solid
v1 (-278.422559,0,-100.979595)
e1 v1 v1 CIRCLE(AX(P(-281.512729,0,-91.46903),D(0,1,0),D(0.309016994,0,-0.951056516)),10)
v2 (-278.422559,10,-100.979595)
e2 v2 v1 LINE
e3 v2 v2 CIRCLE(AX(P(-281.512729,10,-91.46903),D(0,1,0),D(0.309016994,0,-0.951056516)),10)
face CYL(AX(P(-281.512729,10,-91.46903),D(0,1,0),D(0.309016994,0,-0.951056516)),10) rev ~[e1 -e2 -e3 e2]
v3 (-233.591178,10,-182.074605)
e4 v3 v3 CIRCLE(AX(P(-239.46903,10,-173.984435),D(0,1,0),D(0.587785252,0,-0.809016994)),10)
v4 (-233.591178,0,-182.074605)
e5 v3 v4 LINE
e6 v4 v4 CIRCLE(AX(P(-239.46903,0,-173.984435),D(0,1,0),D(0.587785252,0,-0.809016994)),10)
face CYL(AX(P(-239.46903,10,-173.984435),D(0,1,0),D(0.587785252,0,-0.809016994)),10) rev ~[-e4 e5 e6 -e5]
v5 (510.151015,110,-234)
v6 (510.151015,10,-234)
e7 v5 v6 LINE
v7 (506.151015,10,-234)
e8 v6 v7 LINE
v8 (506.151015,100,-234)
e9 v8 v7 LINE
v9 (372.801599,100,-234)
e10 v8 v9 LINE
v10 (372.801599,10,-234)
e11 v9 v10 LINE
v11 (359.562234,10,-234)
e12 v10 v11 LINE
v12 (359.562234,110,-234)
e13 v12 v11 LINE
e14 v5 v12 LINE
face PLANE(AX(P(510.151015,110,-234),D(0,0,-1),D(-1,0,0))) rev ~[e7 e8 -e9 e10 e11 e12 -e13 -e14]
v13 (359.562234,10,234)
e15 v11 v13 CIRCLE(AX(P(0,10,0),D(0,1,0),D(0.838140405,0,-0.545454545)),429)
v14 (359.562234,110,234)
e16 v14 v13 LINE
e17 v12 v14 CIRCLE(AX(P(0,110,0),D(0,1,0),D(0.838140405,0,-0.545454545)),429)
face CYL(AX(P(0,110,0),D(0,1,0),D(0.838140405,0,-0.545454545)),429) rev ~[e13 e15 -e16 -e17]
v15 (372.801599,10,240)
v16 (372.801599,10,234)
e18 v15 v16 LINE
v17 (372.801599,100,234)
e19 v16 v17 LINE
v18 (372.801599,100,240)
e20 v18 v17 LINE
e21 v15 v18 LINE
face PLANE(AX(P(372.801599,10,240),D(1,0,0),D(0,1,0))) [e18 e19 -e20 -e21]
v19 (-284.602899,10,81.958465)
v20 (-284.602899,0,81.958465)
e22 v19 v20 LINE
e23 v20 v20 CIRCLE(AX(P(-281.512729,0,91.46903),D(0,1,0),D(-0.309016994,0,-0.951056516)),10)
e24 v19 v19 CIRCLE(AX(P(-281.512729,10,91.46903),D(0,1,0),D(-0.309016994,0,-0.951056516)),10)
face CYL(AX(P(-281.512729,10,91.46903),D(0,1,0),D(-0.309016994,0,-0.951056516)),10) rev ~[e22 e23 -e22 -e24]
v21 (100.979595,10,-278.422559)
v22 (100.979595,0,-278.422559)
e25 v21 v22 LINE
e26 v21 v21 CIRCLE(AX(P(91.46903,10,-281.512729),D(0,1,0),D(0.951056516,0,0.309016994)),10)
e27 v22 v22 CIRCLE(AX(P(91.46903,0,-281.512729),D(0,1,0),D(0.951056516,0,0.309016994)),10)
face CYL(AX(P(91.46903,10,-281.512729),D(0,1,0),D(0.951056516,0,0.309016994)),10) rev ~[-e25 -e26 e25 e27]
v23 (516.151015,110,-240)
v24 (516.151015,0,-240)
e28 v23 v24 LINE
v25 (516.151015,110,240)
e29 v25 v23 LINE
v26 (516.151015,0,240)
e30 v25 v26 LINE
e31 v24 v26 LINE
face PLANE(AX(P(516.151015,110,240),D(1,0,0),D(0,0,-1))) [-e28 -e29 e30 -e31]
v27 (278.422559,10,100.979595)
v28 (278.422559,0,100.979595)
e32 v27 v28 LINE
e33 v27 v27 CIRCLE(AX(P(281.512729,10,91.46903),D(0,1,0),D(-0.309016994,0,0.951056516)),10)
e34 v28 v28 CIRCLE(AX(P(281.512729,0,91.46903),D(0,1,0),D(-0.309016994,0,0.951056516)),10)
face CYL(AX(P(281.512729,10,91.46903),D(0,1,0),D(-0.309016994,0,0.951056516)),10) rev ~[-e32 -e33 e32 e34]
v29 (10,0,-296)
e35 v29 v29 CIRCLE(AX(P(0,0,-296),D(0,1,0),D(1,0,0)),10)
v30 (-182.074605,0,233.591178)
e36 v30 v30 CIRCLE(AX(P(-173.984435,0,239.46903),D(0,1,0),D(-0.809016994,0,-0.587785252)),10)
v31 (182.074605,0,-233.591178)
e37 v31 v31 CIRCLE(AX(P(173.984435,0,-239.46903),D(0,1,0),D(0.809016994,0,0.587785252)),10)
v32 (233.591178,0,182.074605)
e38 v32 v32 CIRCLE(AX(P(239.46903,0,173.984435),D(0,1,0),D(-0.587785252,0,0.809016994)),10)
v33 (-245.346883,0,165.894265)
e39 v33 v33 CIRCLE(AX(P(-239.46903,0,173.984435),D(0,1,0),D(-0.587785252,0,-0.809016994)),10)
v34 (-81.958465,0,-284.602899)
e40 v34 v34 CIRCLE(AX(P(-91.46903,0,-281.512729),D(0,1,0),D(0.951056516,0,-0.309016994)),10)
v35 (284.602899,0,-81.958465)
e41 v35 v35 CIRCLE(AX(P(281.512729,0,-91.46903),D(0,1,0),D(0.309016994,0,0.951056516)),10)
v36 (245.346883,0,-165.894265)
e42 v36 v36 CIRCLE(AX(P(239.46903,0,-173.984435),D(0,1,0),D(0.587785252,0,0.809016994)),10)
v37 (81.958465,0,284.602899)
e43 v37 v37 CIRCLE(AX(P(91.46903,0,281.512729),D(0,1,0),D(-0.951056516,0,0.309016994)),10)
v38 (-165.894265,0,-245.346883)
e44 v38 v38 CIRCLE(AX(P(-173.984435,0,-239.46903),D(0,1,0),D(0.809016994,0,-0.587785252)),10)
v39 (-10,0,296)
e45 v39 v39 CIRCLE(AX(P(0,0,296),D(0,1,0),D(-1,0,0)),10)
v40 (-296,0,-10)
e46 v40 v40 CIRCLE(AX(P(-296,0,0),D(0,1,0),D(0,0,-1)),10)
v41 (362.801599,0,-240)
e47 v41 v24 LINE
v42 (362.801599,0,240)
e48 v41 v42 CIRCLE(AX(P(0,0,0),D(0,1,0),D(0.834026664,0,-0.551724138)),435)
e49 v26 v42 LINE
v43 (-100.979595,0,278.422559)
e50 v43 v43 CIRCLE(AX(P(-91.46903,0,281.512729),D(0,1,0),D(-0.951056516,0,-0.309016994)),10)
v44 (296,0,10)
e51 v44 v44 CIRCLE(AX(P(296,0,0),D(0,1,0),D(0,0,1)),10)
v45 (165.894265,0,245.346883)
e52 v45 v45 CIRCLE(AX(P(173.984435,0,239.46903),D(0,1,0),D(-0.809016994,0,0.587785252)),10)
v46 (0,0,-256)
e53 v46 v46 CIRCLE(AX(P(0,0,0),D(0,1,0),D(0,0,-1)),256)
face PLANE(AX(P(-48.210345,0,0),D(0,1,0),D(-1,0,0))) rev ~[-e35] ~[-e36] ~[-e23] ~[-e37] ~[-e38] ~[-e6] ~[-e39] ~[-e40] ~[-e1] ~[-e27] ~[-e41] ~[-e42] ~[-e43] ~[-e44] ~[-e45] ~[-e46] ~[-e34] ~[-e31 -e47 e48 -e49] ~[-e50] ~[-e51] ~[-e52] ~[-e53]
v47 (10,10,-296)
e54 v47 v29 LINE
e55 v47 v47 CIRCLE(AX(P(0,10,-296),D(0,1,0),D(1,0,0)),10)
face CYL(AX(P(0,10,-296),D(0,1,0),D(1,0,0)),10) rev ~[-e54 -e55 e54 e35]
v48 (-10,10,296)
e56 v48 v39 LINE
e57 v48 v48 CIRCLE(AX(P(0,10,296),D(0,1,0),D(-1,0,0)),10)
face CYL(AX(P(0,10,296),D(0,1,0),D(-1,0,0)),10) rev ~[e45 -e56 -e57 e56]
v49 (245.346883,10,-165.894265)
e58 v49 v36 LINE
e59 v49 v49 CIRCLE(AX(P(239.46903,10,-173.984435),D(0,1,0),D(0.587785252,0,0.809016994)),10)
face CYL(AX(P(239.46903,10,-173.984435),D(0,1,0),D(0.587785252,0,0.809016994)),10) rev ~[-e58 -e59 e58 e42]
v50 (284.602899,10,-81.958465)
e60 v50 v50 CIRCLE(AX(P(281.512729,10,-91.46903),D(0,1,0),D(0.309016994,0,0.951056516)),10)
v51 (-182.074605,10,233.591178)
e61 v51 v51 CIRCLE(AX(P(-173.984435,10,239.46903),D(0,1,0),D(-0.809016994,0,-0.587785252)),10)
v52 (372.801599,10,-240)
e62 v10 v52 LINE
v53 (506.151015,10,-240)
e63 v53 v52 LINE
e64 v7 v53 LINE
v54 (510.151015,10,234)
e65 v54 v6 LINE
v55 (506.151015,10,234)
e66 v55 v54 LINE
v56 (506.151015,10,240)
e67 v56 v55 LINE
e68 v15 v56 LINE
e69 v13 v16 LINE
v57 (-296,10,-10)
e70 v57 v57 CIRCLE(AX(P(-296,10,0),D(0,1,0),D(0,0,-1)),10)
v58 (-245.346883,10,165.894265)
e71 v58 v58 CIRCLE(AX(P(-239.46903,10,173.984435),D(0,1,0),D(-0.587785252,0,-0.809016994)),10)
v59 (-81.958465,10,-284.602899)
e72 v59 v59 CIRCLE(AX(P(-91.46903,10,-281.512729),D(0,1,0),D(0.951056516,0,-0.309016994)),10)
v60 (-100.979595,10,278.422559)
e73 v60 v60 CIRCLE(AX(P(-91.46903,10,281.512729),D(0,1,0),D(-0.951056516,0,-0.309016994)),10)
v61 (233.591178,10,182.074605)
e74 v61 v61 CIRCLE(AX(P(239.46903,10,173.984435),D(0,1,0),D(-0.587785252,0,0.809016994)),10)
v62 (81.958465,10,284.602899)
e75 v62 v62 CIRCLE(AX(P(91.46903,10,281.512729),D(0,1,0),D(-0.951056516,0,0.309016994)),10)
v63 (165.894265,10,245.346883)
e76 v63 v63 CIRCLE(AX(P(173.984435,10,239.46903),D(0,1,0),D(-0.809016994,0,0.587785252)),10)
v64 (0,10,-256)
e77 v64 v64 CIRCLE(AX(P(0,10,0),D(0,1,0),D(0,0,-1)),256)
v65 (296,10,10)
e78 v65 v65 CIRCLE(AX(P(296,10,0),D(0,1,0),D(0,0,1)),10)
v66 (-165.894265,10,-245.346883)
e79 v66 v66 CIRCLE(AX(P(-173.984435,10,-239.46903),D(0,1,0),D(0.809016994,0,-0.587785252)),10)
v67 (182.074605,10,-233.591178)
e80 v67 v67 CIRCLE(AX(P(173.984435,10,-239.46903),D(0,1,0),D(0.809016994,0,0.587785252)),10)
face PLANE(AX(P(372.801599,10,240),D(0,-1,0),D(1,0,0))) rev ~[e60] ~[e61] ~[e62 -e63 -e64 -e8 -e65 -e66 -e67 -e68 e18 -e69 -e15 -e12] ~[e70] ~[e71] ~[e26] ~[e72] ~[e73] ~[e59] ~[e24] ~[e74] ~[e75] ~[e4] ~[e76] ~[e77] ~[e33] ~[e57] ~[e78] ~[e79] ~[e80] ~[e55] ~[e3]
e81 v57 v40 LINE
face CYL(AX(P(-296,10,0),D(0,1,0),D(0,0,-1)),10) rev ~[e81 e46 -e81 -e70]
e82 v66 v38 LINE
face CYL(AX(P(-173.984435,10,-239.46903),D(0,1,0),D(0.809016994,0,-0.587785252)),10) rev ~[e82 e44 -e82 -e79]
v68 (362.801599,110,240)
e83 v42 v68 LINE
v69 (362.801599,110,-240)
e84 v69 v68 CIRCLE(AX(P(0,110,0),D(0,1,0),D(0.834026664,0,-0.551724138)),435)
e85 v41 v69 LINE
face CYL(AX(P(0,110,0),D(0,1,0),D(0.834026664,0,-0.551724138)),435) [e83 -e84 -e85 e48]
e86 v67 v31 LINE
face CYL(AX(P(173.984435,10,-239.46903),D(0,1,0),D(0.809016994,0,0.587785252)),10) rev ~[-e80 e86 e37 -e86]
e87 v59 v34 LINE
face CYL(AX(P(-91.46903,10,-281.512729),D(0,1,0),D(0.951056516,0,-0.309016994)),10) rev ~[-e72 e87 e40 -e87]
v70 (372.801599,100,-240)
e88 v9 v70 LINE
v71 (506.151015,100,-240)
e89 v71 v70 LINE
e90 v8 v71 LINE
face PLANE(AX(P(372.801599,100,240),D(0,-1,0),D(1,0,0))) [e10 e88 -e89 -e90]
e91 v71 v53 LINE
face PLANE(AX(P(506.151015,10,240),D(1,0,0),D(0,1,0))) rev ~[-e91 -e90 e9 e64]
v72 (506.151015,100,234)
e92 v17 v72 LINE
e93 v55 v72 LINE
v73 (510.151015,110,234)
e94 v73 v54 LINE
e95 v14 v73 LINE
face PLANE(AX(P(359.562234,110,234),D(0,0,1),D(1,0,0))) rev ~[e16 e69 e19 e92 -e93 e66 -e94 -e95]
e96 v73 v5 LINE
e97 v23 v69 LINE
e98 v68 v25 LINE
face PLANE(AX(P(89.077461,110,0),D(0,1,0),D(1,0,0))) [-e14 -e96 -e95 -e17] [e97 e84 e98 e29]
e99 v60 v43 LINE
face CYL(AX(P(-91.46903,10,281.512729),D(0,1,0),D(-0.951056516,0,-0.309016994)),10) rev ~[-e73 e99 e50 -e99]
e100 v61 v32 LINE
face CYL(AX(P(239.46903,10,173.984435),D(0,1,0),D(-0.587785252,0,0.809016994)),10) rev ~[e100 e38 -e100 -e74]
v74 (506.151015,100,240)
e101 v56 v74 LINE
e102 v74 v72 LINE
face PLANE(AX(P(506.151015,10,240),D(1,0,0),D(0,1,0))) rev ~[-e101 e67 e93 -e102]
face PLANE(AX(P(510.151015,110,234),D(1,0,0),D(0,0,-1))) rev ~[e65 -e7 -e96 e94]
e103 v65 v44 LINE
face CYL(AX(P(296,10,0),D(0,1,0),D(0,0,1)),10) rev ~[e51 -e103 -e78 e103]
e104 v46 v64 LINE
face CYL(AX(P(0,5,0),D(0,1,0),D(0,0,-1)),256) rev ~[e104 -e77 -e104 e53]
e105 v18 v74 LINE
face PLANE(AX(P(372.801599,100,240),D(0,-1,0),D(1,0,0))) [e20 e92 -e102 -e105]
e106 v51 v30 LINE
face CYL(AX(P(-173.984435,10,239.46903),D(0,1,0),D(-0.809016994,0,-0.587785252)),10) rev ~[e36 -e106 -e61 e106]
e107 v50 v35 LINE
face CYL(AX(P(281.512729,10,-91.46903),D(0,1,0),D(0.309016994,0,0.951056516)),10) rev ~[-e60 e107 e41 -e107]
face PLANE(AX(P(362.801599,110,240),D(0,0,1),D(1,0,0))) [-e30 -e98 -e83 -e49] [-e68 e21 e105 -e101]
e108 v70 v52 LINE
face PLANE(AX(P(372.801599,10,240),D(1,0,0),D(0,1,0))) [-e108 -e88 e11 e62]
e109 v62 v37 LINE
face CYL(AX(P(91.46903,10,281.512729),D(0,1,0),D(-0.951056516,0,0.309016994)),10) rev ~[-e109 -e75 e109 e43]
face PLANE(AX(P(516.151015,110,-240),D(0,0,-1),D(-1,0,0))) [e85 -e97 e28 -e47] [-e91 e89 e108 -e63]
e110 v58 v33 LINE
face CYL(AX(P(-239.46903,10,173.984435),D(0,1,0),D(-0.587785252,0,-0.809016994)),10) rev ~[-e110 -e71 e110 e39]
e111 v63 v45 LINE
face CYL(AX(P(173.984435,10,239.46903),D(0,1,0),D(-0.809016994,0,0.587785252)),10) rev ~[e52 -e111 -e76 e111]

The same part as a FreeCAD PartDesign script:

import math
import FreeCAD as App
import Part
import Sketcher
Q = App.Units.Quantity

doc = App.newDocument("Part")
params = doc.addObject("Spreadsheet::Sheet", "Params")
for row, (alias, value) in enumerate([
    ("sketch1_width", "80 mm"),
    ("sketch1_height", "10 mm"),
    ("revolution_angle", "360 deg"),
    ("sketch2_diameter", "20 mm"),
    ("sketch3_radius", "336 mm"),
    ("sketch3_width", "281 mm"),
    ("sketch3_height", "480 mm"),
    ("pad1_length", "10 mm"),
    ("sketch4_radius", "336 mm"),
    ("sketch4_radius2", "435 mm"),
    ("pad2_length", "10 mm"),
    ("sketch5_radius", "435 mm"),
    ("sketch5_radius2", "429 mm"),
    ("sketch5_height", "480 mm"),
    ("sketch5_height2", "468 mm"),
    ("pad3_length", "100 mm"),
    ("sketch6_height", "90 mm"),
], start=1):
    params.set(f"A{row}", alias)
    params.set(f"B{row}", "=" + value)
    params.setAlias(f"B{row}", alias)

body = doc.addObject("PartDesign::Body", "Body")

# Sketch on XY plane
sketch1 = doc.addObject("Sketcher::SketchObject", "Sketch")
body.addObject(sketch1)
sketch1.AttachmentSupport = (doc.XY_Plane, [""])
sketch1.MapMode = "FlatFace"
sketch1.addGeometry([
    Part.LineSegment(App.Vector(256, 10, 0), App.Vector(256, 0, 0)),
    Part.LineSegment(App.Vector(256, 0, 0), App.Vector(336, 0, 0)),
    Part.LineSegment(App.Vector(336, 0, 0), App.Vector(336, 10, 0)),
    Part.LineSegment(App.Vector(336, 10, 0), App.Vector(256, 10, 0)),
], False)
sketch1.addConstraint([
    Sketcher.Constraint("Coincident", 0, 2, 1, 1),
    Sketcher.Constraint("Coincident", 1, 2, 2, 1),
    Sketcher.Constraint("Coincident", 2, 2, 3, 1),
    Sketcher.Constraint("Coincident", 3, 2, 0, 1),
    Sketcher.Constraint("Vertical", 0),
    Sketcher.Constraint("Horizontal", 1),
    Sketcher.Constraint("Vertical", 2),
    Sketcher.Constraint("Horizontal", 3),
    Sketcher.Constraint("PointOnObject", 0, 2, -1),
    Sketcher.Constraint("DistanceX", 1, 1, 1, 2, Q("80 mm")),
    Sketcher.Constraint("DistanceY", 0, 2, 0, 1, Q("10 mm")),
    Sketcher.Constraint("DistanceX", -1, 1, 0, 2, Q("256 mm")),
])
sketch1.setExpression("Constraints[9]", "Params.sketch1_width")
sketch1.setExpression("Constraints[10]", "Params.sketch1_height")
revolution = doc.addObject("PartDesign::Revolution", "Revolution")
body.addObject(revolution)
revolution.Profile = sketch1
revolution.ReferenceAxis = (sketch1, ["V_Axis"])
revolution.setExpression("Angle", "Params.revolution_angle")

# Sketch on XZ plane
sketch2 = doc.addObject("Sketcher::SketchObject", "Sketch001")
body.addObject(sketch2)
sketch2.AttachmentSupport = (doc.XZ_Plane, [""])
sketch2.MapMode = "FlatFace"
sketch2.AttachmentOffset = App.Placement(App.Vector(0, 0, -10), App.Rotation())
sketch2.addGeometry(Part.Circle(App.Vector(296, 0, 0), App.Vector(0, 0, 1), 10), False)
sketch2.addConstraint([
    Sketcher.Constraint("PointOnObject", 0, 3, -1),
    Sketcher.Constraint("Diameter", 0, Q("20 mm")),
    Sketcher.Constraint("DistanceX", -1, 1, 0, 3, Q("296 mm")),
])
sketch2.setExpression("Constraints[1]", "Params.sketch2_diameter")
pocket1 = doc.addObject("PartDesign::Pocket", "Pocket")
body.addObject(pocket1)
pocket1.Profile = sketch2
pocket1.Type = "ThroughAll"
pocket1.Reversed = True
doc.recompute()

polarpattern = doc.addObject("PartDesign::PolarPattern", "PolarPattern")
body.addObject(polarpattern)
polarpattern.Originals = [pocket1]
polarpattern.Axis = (doc.Y_Axis, [""])
polarpattern.Angle = 360
polarpattern.Occurrences = 20
body.Tip = polarpattern

# Sketch on XZ plane
sketch3 = doc.addObject("Sketcher::SketchObject", "Sketch002")
body.addObject(sketch3)
sketch3.AttachmentSupport = (doc.XZ_Plane, [""])
sketch3.MapMode = "FlatFace"
sketch3.AttachmentOffset = App.Placement(App.Vector(0, 0, -10), App.Rotation())
sketch3.addGeometry([
    Part.LineSegment(App.Vector(516.151015, -240, 0), App.Vector(516.151015, 240, 0)),
    Part.LineSegment(App.Vector(516.151015, 240, 0), App.Vector(235.151015, 240, 0)),
    Part.ArcOfCircle(Part.Circle(App.Vector(0, 0, 0), App.Vector(0, 0, 1), 336), math.radians(-45.584691), math.radians(45.584691)),
    Part.LineSegment(App.Vector(235.151015, -240, 0), App.Vector(516.151015, -240, 0)),
], False)
sketch3.addConstraint([
    Sketcher.Constraint("Coincident", 0, 2, 1, 1),
    Sketcher.Constraint("Coincident", 1, 2, 2, 2),
    Sketcher.Constraint("Coincident", 2, 1, 3, 1),
    Sketcher.Constraint("Coincident", 3, 2, 0, 1),
    Sketcher.Constraint("Vertical", 0),
    Sketcher.Constraint("Horizontal", 1),
    Sketcher.Constraint("Horizontal", 3),
    Sketcher.Constraint("Coincident", 2, 3, -1, 1),
    Sketcher.Constraint("Vertical", 1, 2, 2, 1),
    Sketcher.Constraint("Radius", 2, Q("336 mm")),
    Sketcher.Constraint("DistanceX", 1, 2, 1, 1, Q("281 mm")),
    Sketcher.Constraint("DistanceY", 0, 1, 0, 2, Q("480 mm")),
])
sketch3.setExpression("Constraints[9]", "Params.sketch3_radius")
sketch3.setExpression("Constraints[10]", "Params.sketch3_width")
sketch3.setExpression("Constraints[11]", "Params.sketch3_height")
pad1 = doc.addObject("PartDesign::Pad", "Pad")
body.addObject(pad1)
pad1.Profile = sketch3
pad1.setExpression("Length", "Params.pad1_length")

# Sketch on XZ plane
sketch4 = doc.addObject("Sketcher::SketchObject", "Sketch003")
body.addObject(sketch4)
sketch4.AttachmentSupport = (doc.XZ_Plane, [""])
sketch4.MapMode = "FlatFace"
sketch4.AttachmentOffset = App.Placement(App.Vector(0, 0, -10), App.Rotation())
sketch4.addGeometry([
    Part.LineSegment(App.Vector(362.801599, -240, 0), App.Vector(235.151015, -240, 0)),
    Part.ArcOfCircle(Part.Circle(App.Vector(0, 0, 0), App.Vector(0, 0, 1), 336), math.radians(45.584691), math.radians(314.415309)),
    Part.LineSegment(App.Vector(235.151015, 240, 0), App.Vector(362.801599, 240, 0)),
    Part.ArcOfCircle(Part.Circle(App.Vector(0, 0, 0), App.Vector(0, 0, 1), 435), math.radians(33.485377), math.radians(326.514623)),
], False)
sketch4.addConstraint([
    Sketcher.Constraint("Coincident", 0, 2, 1, 2),
    Sketcher.Constraint("Coincident", 1, 1, 2, 1),
    Sketcher.Constraint("Coincident", 2, 2, 3, 1),
    Sketcher.Constraint("Coincident", 3, 2, 0, 1),
    Sketcher.Constraint("Horizontal", 0),
    Sketcher.Constraint("Horizontal", 2),
    Sketcher.Constraint("Coincident", 1, 3, -1, 1),
    Sketcher.Constraint("Coincident", 3, 3, -1, 1),
    Sketcher.Constraint("Vertical", 0, 2, 1, 1),
    Sketcher.Constraint("Radius", 1, Q("336 mm")),
    Sketcher.Constraint("Radius", 3, Q("435 mm")),
    Sketcher.Constraint("DistanceY", 0, 2, -1, 1, Q("240 mm")),
])
sketch4.setExpression("Constraints[9]", "Params.sketch4_radius")
sketch4.setExpression("Constraints[10]", "Params.sketch4_radius2")
pad2 = doc.addObject("PartDesign::Pad", "Pad001")
body.addObject(pad2)
pad2.Profile = sketch4
pad2.setExpression("Length", "Params.pad2_length")

# Sketch on XZ plane
sketch5 = doc.addObject("Sketcher::SketchObject", "Sketch004")
body.addObject(sketch5)
sketch5.AttachmentSupport = (doc.XZ_Plane, [""])
sketch5.MapMode = "FlatFace"
sketch5.AttachmentOffset = App.Placement(App.Vector(0, 0, -110), App.Rotation())
sketch5.addGeometry([
    Part.LineSegment(App.Vector(516.151015, -240, 0), App.Vector(362.801599, -240, 0)),  # 0
    Part.ArcOfCircle(Part.Circle(App.Vector(0, 0, 0), App.Vector(0, 0, 1), 435), math.radians(33.485377), math.radians(326.514623)),  # 1
    Part.LineSegment(App.Vector(362.801599, 240, 0), App.Vector(516.151015, 240, 0)),  # 2
    Part.LineSegment(App.Vector(516.151015, 240, 0), App.Vector(516.151015, -240, 0)),  # 3
    Part.ArcOfCircle(Part.Circle(App.Vector(0, 0, 0), App.Vector(0, 0, 1), 429), math.radians(33.055731), math.radians(326.944269)),  # 4
    Part.LineSegment(App.Vector(359.562234, -234, 0), App.Vector(510.151015, -234, 0)),  # 5
    Part.LineSegment(App.Vector(510.151015, -234, 0), App.Vector(510.151015, 234, 0)),  # 6
    Part.LineSegment(App.Vector(510.151015, 234, 0), App.Vector(359.562234, 234, 0)),  # 7
], False)
sketch5.addConstraint([
    Sketcher.Constraint("Coincident", 0, 2, 1, 2),
    Sketcher.Constraint("Coincident", 1, 1, 2, 1),
    Sketcher.Constraint("Coincident", 2, 2, 3, 1),
    Sketcher.Constraint("Coincident", 3, 2, 0, 1),
    Sketcher.Constraint("Coincident", 4, 2, 5, 1),
    Sketcher.Constraint("Coincident", 5, 2, 6, 1),
    Sketcher.Constraint("Coincident", 6, 2, 7, 1),
    Sketcher.Constraint("Coincident", 7, 2, 4, 1),
    Sketcher.Constraint("Horizontal", 0),
    Sketcher.Constraint("Horizontal", 2),
    Sketcher.Constraint("Vertical", 3),
    Sketcher.Constraint("Horizontal", 5),
    Sketcher.Constraint("Vertical", 6),
    Sketcher.Constraint("Horizontal", 7),
    Sketcher.Constraint("Coincident", 1, 3, -1, 1),
    Sketcher.Constraint("Coincident", 4, 3, -1, 1),
    Sketcher.Constraint("Vertical", 0, 2, 1, 1),
    Sketcher.Constraint("Vertical", 4, 2, 7, 2),
    Sketcher.Constraint("Radius", 1, Q("435 mm")),
    Sketcher.Constraint("Radius", 4, Q("429 mm")),
    Sketcher.Constraint("DistanceY", 3, 2, 3, 1, Q("480 mm")),
    Sketcher.Constraint("DistanceY", 6, 1, 6, 2, Q("468 mm")),
    Sketcher.Constraint("DistanceX", 5, 2, 3, 2, Q("6 mm")),
    Sketcher.Constraint("DistanceX", 5, 1, 5, 2, Q("150.588781 mm")),
])
sketch5.setExpression("Constraints[18]", "Params.sketch5_radius")
sketch5.setExpression("Constraints[19]", "Params.sketch5_radius2")
sketch5.setExpression("Constraints[20]", "Params.sketch5_height")
sketch5.setExpression("Constraints[21]", "Params.sketch5_height2")
pad3 = doc.addObject("PartDesign::Pad", "Pad002")
body.addObject(pad3)
pad3.Profile = sketch5
pad3.setExpression("Length", "Params.pad3_length")

# Sketch on XY plane
sketch6 = doc.addObject("Sketcher::SketchObject", "Sketch005")
body.addObject(sketch6)
sketch6.AttachmentSupport = (doc.XY_Plane, [""])
sketch6.MapMode = "FlatFace"
sketch6.AttachmentOffset = App.Placement(App.Vector(0, 0, 240), App.Rotation())
sketch6.addGeometry([
    Part.LineSegment(App.Vector(372.801599, 100, 0), App.Vector(372.801599, 10, 0)),
    Part.LineSegment(App.Vector(372.801599, 10, 0), App.Vector(506.151015, 10, 0)),
    Part.LineSegment(App.Vector(506.151015, 10, 0), App.Vector(506.151015, 100, 0)),
    Part.LineSegment(App.Vector(506.151015, 100, 0), App.Vector(372.801599, 100, 0)),
], False)
sketch6.addConstraint([
    Sketcher.Constraint("Coincident", 0, 2, 1, 1),
    Sketcher.Constraint("Coincident", 1, 2, 2, 1),
    Sketcher.Constraint("Coincident", 2, 2, 3, 1),
    Sketcher.Constraint("Coincident", 3, 2, 0, 1),
    Sketcher.Constraint("Vertical", 0),
    Sketcher.Constraint("Horizontal", 1),
    Sketcher.Constraint("Vertical", 2),
    Sketcher.Constraint("Horizontal", 3),
    Sketcher.Constraint("DistanceY", 0, 2, 0, 1, Q("90 mm")),
    Sketcher.Constraint("DistanceY", -1, 1, 0, 2, Q("10 mm")),
    Sketcher.Constraint("DistanceX", -1, 1, 0, 2, Q("372.801599 mm")),
    Sketcher.Constraint("DistanceX", 1, 1, 1, 2, Q("133.349417 mm")),
])
sketch6.setExpression("Constraints[8]", "Params.sketch6_height")
pocket2 = doc.addObject("PartDesign::Pocket", "Pocket001")
body.addObject(pocket2)
pocket2.Profile = sketch6
pocket2.Type = "ThroughAll"

doc.recompute()
